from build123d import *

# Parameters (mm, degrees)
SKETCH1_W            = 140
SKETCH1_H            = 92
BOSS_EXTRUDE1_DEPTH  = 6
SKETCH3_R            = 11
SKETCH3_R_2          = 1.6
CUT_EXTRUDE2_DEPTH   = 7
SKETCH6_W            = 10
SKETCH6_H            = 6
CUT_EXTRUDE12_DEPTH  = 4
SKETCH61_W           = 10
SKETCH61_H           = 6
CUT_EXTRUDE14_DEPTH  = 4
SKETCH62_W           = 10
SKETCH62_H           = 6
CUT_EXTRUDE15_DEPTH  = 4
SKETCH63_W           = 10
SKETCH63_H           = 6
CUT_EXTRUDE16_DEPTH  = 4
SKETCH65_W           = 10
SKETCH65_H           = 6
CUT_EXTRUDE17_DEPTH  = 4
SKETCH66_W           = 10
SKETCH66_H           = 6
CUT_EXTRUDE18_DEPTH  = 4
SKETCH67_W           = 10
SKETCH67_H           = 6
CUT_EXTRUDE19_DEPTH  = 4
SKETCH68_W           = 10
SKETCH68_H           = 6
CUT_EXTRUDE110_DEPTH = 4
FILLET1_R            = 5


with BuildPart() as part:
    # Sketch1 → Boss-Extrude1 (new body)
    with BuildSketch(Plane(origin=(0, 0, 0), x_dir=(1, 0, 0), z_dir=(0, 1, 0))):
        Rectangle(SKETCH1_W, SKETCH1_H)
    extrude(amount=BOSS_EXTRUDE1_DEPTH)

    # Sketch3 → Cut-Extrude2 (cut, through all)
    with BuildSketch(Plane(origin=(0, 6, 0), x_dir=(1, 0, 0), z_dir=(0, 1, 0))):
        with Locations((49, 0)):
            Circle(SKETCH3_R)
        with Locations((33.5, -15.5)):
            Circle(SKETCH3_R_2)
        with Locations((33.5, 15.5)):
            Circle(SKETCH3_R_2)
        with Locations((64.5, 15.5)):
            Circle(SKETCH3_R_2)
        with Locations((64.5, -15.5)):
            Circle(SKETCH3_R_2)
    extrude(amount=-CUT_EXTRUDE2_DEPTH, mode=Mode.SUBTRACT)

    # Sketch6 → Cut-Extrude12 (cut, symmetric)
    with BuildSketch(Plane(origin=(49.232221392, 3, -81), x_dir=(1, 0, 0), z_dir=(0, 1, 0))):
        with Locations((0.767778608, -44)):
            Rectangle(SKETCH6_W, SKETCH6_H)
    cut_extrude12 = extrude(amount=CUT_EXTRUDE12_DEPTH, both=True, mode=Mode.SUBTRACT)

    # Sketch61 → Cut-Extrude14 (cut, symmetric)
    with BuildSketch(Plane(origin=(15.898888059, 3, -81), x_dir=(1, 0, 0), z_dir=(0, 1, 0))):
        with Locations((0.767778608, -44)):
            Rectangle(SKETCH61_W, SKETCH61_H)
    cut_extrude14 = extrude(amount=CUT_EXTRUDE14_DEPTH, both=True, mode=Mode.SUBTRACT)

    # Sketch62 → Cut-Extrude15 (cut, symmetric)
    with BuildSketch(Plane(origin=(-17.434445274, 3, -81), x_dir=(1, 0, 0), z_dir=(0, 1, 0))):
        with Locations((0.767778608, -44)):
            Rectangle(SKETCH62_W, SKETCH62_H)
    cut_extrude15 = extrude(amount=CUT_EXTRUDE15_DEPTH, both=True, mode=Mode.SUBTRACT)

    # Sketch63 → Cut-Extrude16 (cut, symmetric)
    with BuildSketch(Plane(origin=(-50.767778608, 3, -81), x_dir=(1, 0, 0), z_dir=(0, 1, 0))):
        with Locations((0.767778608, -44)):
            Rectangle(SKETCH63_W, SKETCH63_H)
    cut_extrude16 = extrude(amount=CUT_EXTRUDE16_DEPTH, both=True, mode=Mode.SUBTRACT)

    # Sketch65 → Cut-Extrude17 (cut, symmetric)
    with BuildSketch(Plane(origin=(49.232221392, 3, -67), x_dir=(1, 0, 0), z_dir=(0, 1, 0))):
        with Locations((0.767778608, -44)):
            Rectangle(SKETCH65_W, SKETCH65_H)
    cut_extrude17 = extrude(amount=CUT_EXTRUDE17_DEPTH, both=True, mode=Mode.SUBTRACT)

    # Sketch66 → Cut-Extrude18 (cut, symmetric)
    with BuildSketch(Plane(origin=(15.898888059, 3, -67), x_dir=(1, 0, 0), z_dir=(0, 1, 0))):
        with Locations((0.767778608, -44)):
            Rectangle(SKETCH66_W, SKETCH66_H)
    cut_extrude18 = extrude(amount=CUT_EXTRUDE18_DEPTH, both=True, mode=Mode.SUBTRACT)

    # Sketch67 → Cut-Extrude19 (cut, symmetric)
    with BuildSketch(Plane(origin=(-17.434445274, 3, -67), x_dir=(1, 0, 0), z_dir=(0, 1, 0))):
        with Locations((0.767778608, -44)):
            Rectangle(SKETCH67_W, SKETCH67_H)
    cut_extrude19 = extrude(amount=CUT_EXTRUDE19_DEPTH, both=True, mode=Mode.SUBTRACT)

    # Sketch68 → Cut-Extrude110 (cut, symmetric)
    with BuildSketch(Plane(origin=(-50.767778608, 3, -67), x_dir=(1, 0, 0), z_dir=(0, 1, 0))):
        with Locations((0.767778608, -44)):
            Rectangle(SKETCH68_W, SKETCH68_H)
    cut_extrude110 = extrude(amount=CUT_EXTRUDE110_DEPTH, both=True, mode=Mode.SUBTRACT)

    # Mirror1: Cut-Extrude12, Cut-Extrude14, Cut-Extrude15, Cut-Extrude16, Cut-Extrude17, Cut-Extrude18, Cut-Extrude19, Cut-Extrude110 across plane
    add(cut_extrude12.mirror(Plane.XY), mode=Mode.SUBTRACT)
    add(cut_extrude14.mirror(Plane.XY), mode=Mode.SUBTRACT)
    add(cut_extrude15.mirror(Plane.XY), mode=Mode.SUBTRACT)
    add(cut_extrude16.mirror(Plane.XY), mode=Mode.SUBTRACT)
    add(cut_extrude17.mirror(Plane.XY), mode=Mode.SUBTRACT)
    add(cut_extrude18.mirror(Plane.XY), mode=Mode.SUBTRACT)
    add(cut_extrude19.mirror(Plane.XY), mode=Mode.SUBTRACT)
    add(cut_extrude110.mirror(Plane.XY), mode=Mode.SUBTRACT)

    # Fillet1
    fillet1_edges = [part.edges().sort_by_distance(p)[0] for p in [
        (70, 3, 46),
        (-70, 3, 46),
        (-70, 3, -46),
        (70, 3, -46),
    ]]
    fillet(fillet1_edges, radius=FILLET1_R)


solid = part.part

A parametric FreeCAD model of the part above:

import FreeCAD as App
import Part
import Sketcher

V = App.Vector


def edges_at(feature, points):
    """Names of the edges that pass closest to the given points."""
    edges = feature.Shape.Edges
    near = lambda p: min(range(len(edges)), key=lambda i: edges[i].distToShape(Part.Vertex(*p))[0])
    return sorted({f"Edge{near(p) + 1}" for p in points})


def add_polygon(sketch, points):
    """Adds a closed chain of lines whose ends are joined by coincident constraints."""
    first, n = sketch.GeometryCount, len(points)
    for a, b in zip(points, points[1:] + points[:1]):
        sketch.addGeometry(Part.LineSegment(App.Vector(*a, 0), App.Vector(*b, 0)), False)
    for i in range(n):
        sketch.addConstraint(Sketcher.Constraint("Coincident", first + i, 2, first + (i + 1) % n, 1))

doc = App.newDocument("Part")
body = doc.addObject("PartDesign::Body", "Body")

# Sketch on XZ plane
sketch1 = doc.addObject("Sketcher::SketchObject", "Sketch")
body.addObject(sketch1)
sketch1.AttachmentSupport = (doc.XZ_Plane, [""])
sketch1.MapMode = "FlatFace"
add_polygon(sketch1, [(-70, -46), (-70, 46), (70, 46), (70, -46)])  # lines 0-3
sketch1.addConstraint(Sketcher.Constraint("Vertical", 0))
sketch1.addConstraint(Sketcher.Constraint("Horizontal", 1))
sketch1.addConstraint(Sketcher.Constraint("Vertical", 2))
sketch1.addConstraint(Sketcher.Constraint("Horizontal", 3))
sketch1.addConstraint(Sketcher.Constraint("Symmetric", 0, 2, 2, 2, -1, 1))
sketch1.addConstraint(Sketcher.Constraint("DistanceX", 1, 1, 1, 2, 140.0))
sketch1.addConstraint(Sketcher.Constraint("DistanceY", 0, 1, 0, 2, 92.0))
pad1 = doc.addObject("PartDesign::Pad", "Pad")
body.addObject(pad1)
pad1.Profile = sketch1
pad1.Length = 6
pad1.Reversed = True

# Sketch on XZ plane
sketch2 = doc.addObject("Sketcher::SketchObject", "Sketch001")
body.addObject(sketch2)
sketch2.AttachmentSupport = (doc.XZ_Plane, [""])
sketch2.MapMode = "FlatFace"
sketch2.AttachmentOffset = App.Placement(V(0, 0, -6), App.Rotation())
sketch2.addGeometry(Part.Circle(V(49, 0, 0), V(0, 0, 1), 11), False)
sketch2.addGeometry(Part.Circle(V(33.5, 15.5, 0), V(0, 0, 1), 1.6), False)
sketch2.addGeometry(Part.Circle(V(33.5, -15.5, 0), V(0, 0, 1), 1.6), False)
sketch2.addGeometry(Part.Circle(V(64.5, -15.5, 0), V(0, 0, 1), 1.6), False)
sketch2.addGeometry(Part.Circle(V(64.5, 15.5, 0), V(0, 0, 1), 1.6), False)
sketch2.addConstraint(Sketcher.Constraint("Equal", 1, 2))
sketch2.addConstraint(Sketcher.Constraint("Equal", 2, 3))
sketch2.addConstraint(Sketcher.Constraint("Equal", 3, 4))
sketch2.addConstraint(Sketcher.Constraint("Symmetric", 1, 3, 2, 3, -1))
sketch2.addConstraint(Sketcher.Constraint("Symmetric", 3, 3, 4, 3, -1))
sketch2.addConstraint(Sketcher.Constraint("PointOnObject", 0, 3, -1))
sketch2.addConstraint(Sketcher.Constraint("Horizontal", 2, 3, 3, 3))
sketch2.addConstraint(Sketcher.Constraint("Diameter", 0, 22.0))
sketch2.addConstraint(Sketcher.Constraint("Diameter", 1, 3.2))
sketch2.addConstraint(Sketcher.Constraint("DistanceX", -1, 1, 0, 3, 49.0))
sketch2.addConstraint(Sketcher.Constraint("DistanceY", 2, 3, 1, 3, 31.0))
sketch2.addConstraint(Sketcher.Constraint("DistanceX", 2, 3, 3, 3, 31.0))
sketch2.addConstraint(Sketcher.Constraint("DistanceX", -1, 1, 1, 3, 33.5))
pocket1 = doc.addObject("PartDesign::Pocket", "Pocket")
body.addObject(pocket1)
pocket1.Profile = sketch2
pocket1.Type = "ThroughAll"
pocket1.Reversed = True

# Sketch on XZ plane
sketch3 = doc.addObject("Sketcher::SketchObject", "Sketch002")
body.addObject(sketch3)
sketch3.AttachmentSupport = (doc.XZ_Plane, [""])
sketch3.MapMode = "FlatFace"
sketch3.AttachmentOffset = App.Placement(V(0, 0, -3), App.Rotation())
add_polygon(sketch3, [(45, -40), (45, -34), (55, -34), (55, -40)])  # lines 0-3
sketch3.addConstraint(Sketcher.Constraint("Vertical", 0))
sketch3.addConstraint(Sketcher.Constraint("Horizontal", 1))
sketch3.addConstraint(Sketcher.Constraint("Vertical", 2))
sketch3.addConstraint(Sketcher.Constraint("Horizontal", 3))
sketch3.addConstraint(Sketcher.Constraint("DistanceX", 1, 1, 1, 2, 10.0))
sketch3.addConstraint(Sketcher.Constraint("DistanceY", 0, 1, 0, 2, 6.0))
sketch3.addConstraint(Sketcher.Constraint("DistanceX", -1, 1, 0, 2, 45.0))
sketch3.addConstraint(Sketcher.Constraint("DistanceY", 0, 2, -1, 1, 34.0))
pocket2 = doc.addObject("PartDesign::Pocket", "Pocket001")
body.addObject(pocket2)
pocket2.Profile = sketch3
pocket2.Length = 8
pocket2.Midplane = True

# Sketch on XZ plane
sketch4 = doc.addObject("Sketcher::SketchObject", "Sketch003")
body.addObject(sketch4)
sketch4.AttachmentSupport = (doc.XZ_Plane, [""])
sketch4.MapMode = "FlatFace"
sketch4.AttachmentOffset = App.Placement(V(0, 0, -3), App.Rotation())
add_polygon(sketch4, [(12, -40), (12, -34), (22, -34), (22, -40)])  # lines 0-3
sketch4.addConstraint(Sketcher.Constraint("Vertical", 0))
sketch4.addConstraint(Sketcher.Constraint("Horizontal", 1))
sketch4.addConstraint(Sketcher.Constraint("Vertical", 2))
sketch4.addConstraint(Sketcher.Constraint("Horizontal", 3))
sketch4.addConstraint(Sketcher.Constraint("DistanceX", 1, 1, 1, 2, 10.0))
sketch4.addConstraint(Sketcher.Constraint("DistanceY", 0, 1, 0, 2, 6.0))
sketch4.addConstraint(Sketcher.Constraint("DistanceY", 0, 2, -1, 1, 34.0))
sketch4.addConstraint(Sketcher.Constraint("DistanceX", -1, 1, 0, 2, 11.666667))
pocket3 = doc.addObject("PartDesign::Pocket", "Pocket002")
body.addObject(pocket3)
pocket3.Profile = sketch4
pocket3.Length = 8
pocket3.Midplane = True

# Sketch on XZ plane
sketch5 = doc.addObject("Sketcher::SketchObject", "Sketch004")
body.addObject(sketch5)
sketch5.AttachmentSupport = (doc.XZ_Plane, [""])
sketch5.MapMode = "FlatFace"
sketch5.AttachmentOffset = App.Placement(V(0, 0, -3), App.Rotation())
add_polygon(sketch5, [(-22, -40), (-22, -34), (-12, -34), (-12, -40)])  # lines 0-3
sketch5.addConstraint(Sketcher.Constraint("Vertical", 0))
sketch5.addConstraint(Sketcher.Constraint("Horizontal", 1))
sketch5.addConstraint(Sketcher.Constraint("Vertical", 2))
sketch5.addConstraint(Sketcher.Constraint("Horizontal", 3))
sketch5.addConstraint(Sketcher.Constraint("DistanceX", 1, 1, 1, 2, 10.0))
sketch5.addConstraint(Sketcher.Constraint("DistanceY", 0, 1, 0, 2, 6.0))
sketch5.addConstraint(Sketcher.Constraint("DistanceY", 0, 2, -1, 1, 34.0))
sketch5.addConstraint(Sketcher.Constraint("DistanceX", 0, 2, -1, 1, 21.666667))
pocket4 = doc.addObject("PartDesign::Pocket", "Pocket003")
body.addObject(pocket4)
pocket4.Profile = sketch5
pocket4.Length = 8
pocket4.Midplane = True

# Sketch on XZ plane
sketch6 = doc.addObject("Sketcher::SketchObject", "Sketch005")
body.addObject(sketch6)
sketch6.AttachmentSupport = (doc.XZ_Plane, [""])
sketch6.MapMode = "FlatFace"
sketch6.AttachmentOffset = App.Placement(V(0, 0, -3), App.Rotation())
add_polygon(sketch6, [(-55, -40), (-55, -34), (-45, -34), (-45, -40)])  # lines 0-3
sketch6.addConstraint(Sketcher.Constraint("Vertical", 0))
sketch6.addConstraint(Sketcher.Constraint("Horizontal", 1))
sketch6.addConstraint(Sketcher.Constraint("Vertical", 2))
sketch6.addConstraint(Sketcher.Constraint("Horizontal", 3))
sketch6.addConstraint(Sketcher.Constraint("DistanceX", 1, 1, 1, 2, 10.0))
sketch6.addConstraint(Sketcher.Constraint("DistanceY", 0, 1, 0, 2, 6.0))
sketch6.addConstraint(Sketcher.Constraint("DistanceX", 0, 2, -1, 1, 55.0))
sketch6.addConstraint(Sketcher.Constraint("DistanceY", 0, 2, -1, 1, 34.0))
pocket5 = doc.addObject("PartDesign::Pocket", "Pocket004")
body.addObject(pocket5)
pocket5.Profile = sketch6
pocket5.Length = 8
pocket5.Midplane = True

# Sketch on XZ plane
sketch7 = doc.addObject("Sketcher::SketchObject", "Sketch006")
body.addObject(sketch7)
sketch7.AttachmentSupport = (doc.XZ_Plane, [""])
sketch7.MapMode = "FlatFace"
sketch7.AttachmentOffset = App.Placement(V(0, 0, -3), App.Rotation())
add_polygon(sketch7, [(45, -26), (45, -20), (55, -20), (55, -26)])  # lines 0-3
sketch7.addConstraint(Sketcher.Constraint("Vertical", 0))
sketch7.addConstraint(Sketcher.Constraint("Horizontal", 1))
sketch7.addConstraint(Sketcher.Constraint("Vertical", 2))
sketch7.addConstraint(Sketcher.Constraint("Horizontal", 3))
sketch7.addConstraint(Sketcher.Constraint("DistanceX", 1, 1, 1, 2, 10.0))
sketch7.addConstraint(Sketcher.Constraint("DistanceY", 0, 1, 0, 2, 6.0))
sketch7.addConstraint(Sketcher.Constraint("DistanceX", -1, 1, 0, 2, 45.0))
sketch7.addConstraint(Sketcher.Constraint("DistanceY", 0, 2, -1, 1, 20.0))
pocket6 = doc.addObject("PartDesign::Pocket", "Pocket005")
body.addObject(pocket6)
pocket6.Profile = sketch7
pocket6.Length = 8
pocket6.Midplane = True

# Sketch on XZ plane
sketch8 = doc.addObject("Sketcher::SketchObject", "Sketch007")
body.addObject(sketch8)
sketch8.AttachmentSupport = (doc.XZ_Plane, [""])
sketch8.MapMode = "FlatFace"
sketch8.AttachmentOffset = App.Placement(V(0, 0, -3), App.Rotation())
add_polygon(sketch8, [(12, -26), (12, -20), (22, -20), (22, -26)])  # lines 0-3
sketch8.addConstraint(Sketcher.Constraint("Vertical", 0))
sketch8.addConstraint(Sketcher.Constraint("Horizontal", 1))
sketch8.addConstraint(Sketcher.Constraint("Vertical", 2))
sketch8.addConstraint(Sketcher.Constraint("Horizontal", 3))
sketch8.addConstraint(Sketcher.Constraint("DistanceX", 1, 1, 1, 2, 10.0))
sketch8.addConstraint(Sketcher.Constraint("DistanceY", 0, 1, 0, 2, 6.0))
sketch8.addConstraint(Sketcher.Constraint("DistanceY", 0, 2, -1, 1, 20.0))
sketch8.addConstraint(Sketcher.Constraint("DistanceX", -1, 1, 0, 2, 11.666667))
pocket7 = doc.addObject("PartDesign::Pocket", "Pocket006")
body.addObject(pocket7)
pocket7.Profile = sketch8
pocket7.Length = 8
pocket7.Midplane = True

# Sketch on XZ plane
sketch9 = doc.addObject("Sketcher::SketchObject", "Sketch008")
body.addObject(sketch9)
sketch9.AttachmentSupport = (doc.XZ_Plane, [""])
sketch9.MapMode = "FlatFace"
sketch9.AttachmentOffset = App.Placement(V(0, 0, -3), App.Rotation())
add_polygon(sketch9, [(-22, -26), (-22, -20), (-12, -20), (-12, -26)])  # lines 0-3
sketch9.addConstraint(Sketcher.Constraint("Vertical", 0))
sketch9.addConstraint(Sketcher.Constraint("Horizontal", 1))
sketch9.addConstraint(Sketcher.Constraint("Vertical", 2))
sketch9.addConstraint(Sketcher.Constraint("Horizontal", 3))
sketch9.addConstraint(Sketcher.Constraint("DistanceX", 1, 1, 1, 2, 10.0))
sketch9.addConstraint(Sketcher.Constraint("DistanceY", 0, 1, 0, 2, 6.0))
sketch9.addConstraint(Sketcher.Constraint("DistanceY", 0, 2, -1, 1, 20.0))
sketch9.addConstraint(Sketcher.Constraint("DistanceX", 0, 2, -1, 1, 21.666667))
pocket8 = doc.addObject("PartDesign::Pocket", "Pocket007")
body.addObject(pocket8)
pocket8.Profile = sketch9
pocket8.Length = 8
pocket8.Midplane = True

# Sketch on XZ plane
sketch10 = doc.addObject("Sketcher::SketchObject", "Sketch009")
body.addObject(sketch10)
sketch10.AttachmentSupport = (doc.XZ_Plane, [""])
sketch10.MapMode = "FlatFace"
sketch10.AttachmentOffset = App.Placement(V(0, 0, -3), App.Rotation())
add_polygon(sketch10, [(-55, -26), (-55, -20), (-45, -20), (-45, -26)])  # lines 0-3
sketch10.addConstraint(Sketcher.Constraint("Vertical", 0))
sketch10.addConstraint(Sketcher.Constraint("Horizontal", 1))
sketch10.addConstraint(Sketcher.Constraint("Vertical", 2))
sketch10.addConstraint(Sketcher.Constraint("Horizontal", 3))
sketch10.addConstraint(Sketcher.Constraint("DistanceX", 1, 1, 1, 2, 10.0))
sketch10.addConstraint(Sketcher.Constraint("DistanceY", 0, 1, 0, 2, 6.0))
sketch10.addConstraint(Sketcher.Constraint("DistanceX", 0, 2, -1, 1, 55.0))
sketch10.addConstraint(Sketcher.Constraint("DistanceY", 0, 2, -1, 1, 20.0))
pocket9 = doc.addObject("PartDesign::Pocket", "Pocket008")
body.addObject(pocket9)
pocket9.Profile = sketch10
pocket9.Length = 8
pocket9.Midplane = True
doc.recompute()

mirrored = doc.addObject("PartDesign::Mirrored", "Mirrored")
body.addObject(mirrored)
mirrored.Originals = [pocket2, pocket3, pocket4, pocket5, pocket6, pocket7, pocket8, pocket9]
mirrored.MirrorPlane = (doc.XY_Plane, [""])
body.Tip = mirrored
doc.recompute()

fillet = doc.addObject("PartDesign::Fillet", "Fillet")
body.addObject(fillet)
fillet.Base = (mirrored, edges_at(mirrored, [
    (70, 3, 46),
    (-70, 3, 46),
    (-70, 3, -46),
    (70, 3, -46),
]))
fillet.Radius = 5

doc.recompute()
